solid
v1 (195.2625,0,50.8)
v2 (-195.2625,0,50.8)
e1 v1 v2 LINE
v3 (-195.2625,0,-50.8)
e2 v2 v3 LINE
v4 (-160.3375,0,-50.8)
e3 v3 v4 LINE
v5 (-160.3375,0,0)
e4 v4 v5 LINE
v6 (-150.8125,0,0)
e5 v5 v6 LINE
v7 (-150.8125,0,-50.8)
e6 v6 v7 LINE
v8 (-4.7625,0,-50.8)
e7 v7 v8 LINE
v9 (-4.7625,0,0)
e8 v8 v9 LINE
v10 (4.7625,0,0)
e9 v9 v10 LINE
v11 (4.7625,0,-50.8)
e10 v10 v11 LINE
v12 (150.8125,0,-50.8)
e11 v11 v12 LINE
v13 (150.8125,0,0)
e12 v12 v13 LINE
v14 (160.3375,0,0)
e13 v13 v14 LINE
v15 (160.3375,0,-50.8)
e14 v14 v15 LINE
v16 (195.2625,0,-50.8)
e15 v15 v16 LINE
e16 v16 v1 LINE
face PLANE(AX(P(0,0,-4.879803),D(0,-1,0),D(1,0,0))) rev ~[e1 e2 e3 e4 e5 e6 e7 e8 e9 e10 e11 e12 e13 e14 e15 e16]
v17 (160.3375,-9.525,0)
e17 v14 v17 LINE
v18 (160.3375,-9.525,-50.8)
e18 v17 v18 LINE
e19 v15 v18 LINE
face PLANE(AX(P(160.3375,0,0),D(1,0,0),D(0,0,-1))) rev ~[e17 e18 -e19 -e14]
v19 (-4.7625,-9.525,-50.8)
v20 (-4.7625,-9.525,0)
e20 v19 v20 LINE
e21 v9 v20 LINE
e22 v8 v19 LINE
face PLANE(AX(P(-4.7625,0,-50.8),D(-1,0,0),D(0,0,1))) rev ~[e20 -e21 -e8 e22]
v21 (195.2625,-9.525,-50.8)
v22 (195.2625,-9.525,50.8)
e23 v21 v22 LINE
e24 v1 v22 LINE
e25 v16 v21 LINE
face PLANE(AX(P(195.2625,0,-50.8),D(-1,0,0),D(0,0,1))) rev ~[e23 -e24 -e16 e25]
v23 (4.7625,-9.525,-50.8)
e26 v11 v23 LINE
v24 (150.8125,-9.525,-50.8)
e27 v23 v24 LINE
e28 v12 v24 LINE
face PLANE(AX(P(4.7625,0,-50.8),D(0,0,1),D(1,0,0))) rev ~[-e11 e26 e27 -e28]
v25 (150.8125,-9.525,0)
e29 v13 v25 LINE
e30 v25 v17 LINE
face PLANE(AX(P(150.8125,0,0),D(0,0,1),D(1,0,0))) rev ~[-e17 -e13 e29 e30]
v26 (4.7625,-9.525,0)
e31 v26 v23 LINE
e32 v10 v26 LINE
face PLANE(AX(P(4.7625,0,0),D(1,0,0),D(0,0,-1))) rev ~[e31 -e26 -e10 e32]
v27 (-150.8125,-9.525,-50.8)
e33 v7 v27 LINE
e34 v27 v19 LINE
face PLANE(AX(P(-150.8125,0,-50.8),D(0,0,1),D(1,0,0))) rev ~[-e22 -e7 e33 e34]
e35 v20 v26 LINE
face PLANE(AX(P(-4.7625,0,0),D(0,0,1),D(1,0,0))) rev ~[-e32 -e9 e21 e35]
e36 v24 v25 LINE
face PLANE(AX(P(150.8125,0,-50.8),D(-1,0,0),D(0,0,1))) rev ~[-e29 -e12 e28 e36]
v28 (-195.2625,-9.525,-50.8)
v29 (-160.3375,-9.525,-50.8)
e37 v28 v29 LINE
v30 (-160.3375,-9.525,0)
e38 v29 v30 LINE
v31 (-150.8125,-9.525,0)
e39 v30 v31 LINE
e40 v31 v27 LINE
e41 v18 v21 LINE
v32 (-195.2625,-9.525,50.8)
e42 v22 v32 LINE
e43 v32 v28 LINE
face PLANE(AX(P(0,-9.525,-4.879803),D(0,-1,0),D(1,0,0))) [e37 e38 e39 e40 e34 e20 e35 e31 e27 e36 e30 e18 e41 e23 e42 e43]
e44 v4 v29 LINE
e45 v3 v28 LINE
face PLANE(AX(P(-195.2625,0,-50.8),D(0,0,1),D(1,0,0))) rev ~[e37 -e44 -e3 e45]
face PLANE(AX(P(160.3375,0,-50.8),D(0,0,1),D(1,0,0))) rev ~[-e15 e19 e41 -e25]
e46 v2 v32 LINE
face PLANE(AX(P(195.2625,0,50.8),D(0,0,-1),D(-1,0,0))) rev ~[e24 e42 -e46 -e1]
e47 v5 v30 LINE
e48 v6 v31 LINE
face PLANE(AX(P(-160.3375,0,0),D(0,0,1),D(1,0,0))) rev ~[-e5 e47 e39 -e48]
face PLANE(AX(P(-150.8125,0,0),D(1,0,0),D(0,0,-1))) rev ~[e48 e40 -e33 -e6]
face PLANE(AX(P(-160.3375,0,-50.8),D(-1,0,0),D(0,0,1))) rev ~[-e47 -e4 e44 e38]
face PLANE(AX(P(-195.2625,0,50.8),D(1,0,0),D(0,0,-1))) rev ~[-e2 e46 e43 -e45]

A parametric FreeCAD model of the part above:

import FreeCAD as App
import Part
import Sketcher
Q = App.Units.Quantity


def add_polygon(sketch, points):
    """Adds a closed chain of lines whose ends are joined by coincident constraints."""
    first, n = sketch.GeometryCount, len(points)
    for a, b in zip(points, points[1:] + points[:1]):
        sketch.addGeometry(Part.LineSegment(App.Vector(*a, 0), App.Vector(*b, 0)), False)
    for i in range(n):
        sketch.addConstraint(Sketcher.Constraint("Coincident", first + i, 2, first + (i + 1) % n, 1))

doc = App.newDocument("Part")
body = doc.addObject("PartDesign::Body", "Body")

sketch1 = body.newObject("Sketcher::SketchObject", "Sketch")
sketch1.AttachmentSupport = (doc.getObject("XZ_Plane"), [""])
sketch1.MapMode = "FlatFace"
add_polygon(sketch1, [(-195, 51), (-195, -51), (-160, -51), (-160, 0), (-151, 0), (-151, -51), (-5, -51), (-5, 0), (5, 0), (5, -51), (151, -51), (151, 0), (160, 0), (160, -51), (195, -51), (195, 51)])
sketch1.addConstraint([
    Sketcher.Constraint("Vertical", 0),
    Sketcher.Constraint("Horizontal", 1),
    Sketcher.Constraint("Vertical", 2),
    Sketcher.Constraint("Horizontal", 3),
    Sketcher.Constraint("Vertical", 4),
    Sketcher.Constraint("Horizontal", 5),
    Sketcher.Constraint("Vertical", 6),
    Sketcher.Constraint("Horizontal", 7),
    Sketcher.Constraint("Vertical", 8),
    Sketcher.Constraint("Horizontal", 9),
    Sketcher.Constraint("Vertical", 10),
    Sketcher.Constraint("Horizontal", 11),
    Sketcher.Constraint("Vertical", 12),
    Sketcher.Constraint("Horizontal", 13),
    Sketcher.Constraint("Vertical", 14),
    Sketcher.Constraint("Horizontal", 15),
    Sketcher.Constraint("Symmetric", 6, 2, 7, 2, -1, 1),
    Sketcher.Constraint("Symmetric", 3, 2, 10, 2, -1, 1),
    Sketcher.Constraint("Symmetric", 0, 2, 14, 2, -1, 1),
    Sketcher.Constraint("Symmetric", 2, 2, 11, 2, -2),
    Sketcher.Constraint("Horizontal", 1, 2, 4, 2),
    Sketcher.Constraint("Horizontal", 5, 2, 8, 2),
    Sketcher.Constraint("Horizontal", 9, 2, 12, 2),
    Sketcher.Constraint("Equal", 3, 7),
    Sketcher.Constraint("DistanceY", 0, 2, 0, 1, Q("4 in")),
    Sketcher.Constraint("DistanceX", 5, 1, 5, 2, Q("5.75 in")),
    Sketcher.Constraint("DistanceX", 0, 2, 5, 2, Q("7.5 in")),
    Sketcher.Constraint("DistanceX", 2, 2, 7, 2, Q("6.5 in")),
])
pad1 = body.newObject("PartDesign::Pad", "Pad")
pad1.Profile = sketch1
pad1.Length = Q("0.375 in")

doc.recompute()
